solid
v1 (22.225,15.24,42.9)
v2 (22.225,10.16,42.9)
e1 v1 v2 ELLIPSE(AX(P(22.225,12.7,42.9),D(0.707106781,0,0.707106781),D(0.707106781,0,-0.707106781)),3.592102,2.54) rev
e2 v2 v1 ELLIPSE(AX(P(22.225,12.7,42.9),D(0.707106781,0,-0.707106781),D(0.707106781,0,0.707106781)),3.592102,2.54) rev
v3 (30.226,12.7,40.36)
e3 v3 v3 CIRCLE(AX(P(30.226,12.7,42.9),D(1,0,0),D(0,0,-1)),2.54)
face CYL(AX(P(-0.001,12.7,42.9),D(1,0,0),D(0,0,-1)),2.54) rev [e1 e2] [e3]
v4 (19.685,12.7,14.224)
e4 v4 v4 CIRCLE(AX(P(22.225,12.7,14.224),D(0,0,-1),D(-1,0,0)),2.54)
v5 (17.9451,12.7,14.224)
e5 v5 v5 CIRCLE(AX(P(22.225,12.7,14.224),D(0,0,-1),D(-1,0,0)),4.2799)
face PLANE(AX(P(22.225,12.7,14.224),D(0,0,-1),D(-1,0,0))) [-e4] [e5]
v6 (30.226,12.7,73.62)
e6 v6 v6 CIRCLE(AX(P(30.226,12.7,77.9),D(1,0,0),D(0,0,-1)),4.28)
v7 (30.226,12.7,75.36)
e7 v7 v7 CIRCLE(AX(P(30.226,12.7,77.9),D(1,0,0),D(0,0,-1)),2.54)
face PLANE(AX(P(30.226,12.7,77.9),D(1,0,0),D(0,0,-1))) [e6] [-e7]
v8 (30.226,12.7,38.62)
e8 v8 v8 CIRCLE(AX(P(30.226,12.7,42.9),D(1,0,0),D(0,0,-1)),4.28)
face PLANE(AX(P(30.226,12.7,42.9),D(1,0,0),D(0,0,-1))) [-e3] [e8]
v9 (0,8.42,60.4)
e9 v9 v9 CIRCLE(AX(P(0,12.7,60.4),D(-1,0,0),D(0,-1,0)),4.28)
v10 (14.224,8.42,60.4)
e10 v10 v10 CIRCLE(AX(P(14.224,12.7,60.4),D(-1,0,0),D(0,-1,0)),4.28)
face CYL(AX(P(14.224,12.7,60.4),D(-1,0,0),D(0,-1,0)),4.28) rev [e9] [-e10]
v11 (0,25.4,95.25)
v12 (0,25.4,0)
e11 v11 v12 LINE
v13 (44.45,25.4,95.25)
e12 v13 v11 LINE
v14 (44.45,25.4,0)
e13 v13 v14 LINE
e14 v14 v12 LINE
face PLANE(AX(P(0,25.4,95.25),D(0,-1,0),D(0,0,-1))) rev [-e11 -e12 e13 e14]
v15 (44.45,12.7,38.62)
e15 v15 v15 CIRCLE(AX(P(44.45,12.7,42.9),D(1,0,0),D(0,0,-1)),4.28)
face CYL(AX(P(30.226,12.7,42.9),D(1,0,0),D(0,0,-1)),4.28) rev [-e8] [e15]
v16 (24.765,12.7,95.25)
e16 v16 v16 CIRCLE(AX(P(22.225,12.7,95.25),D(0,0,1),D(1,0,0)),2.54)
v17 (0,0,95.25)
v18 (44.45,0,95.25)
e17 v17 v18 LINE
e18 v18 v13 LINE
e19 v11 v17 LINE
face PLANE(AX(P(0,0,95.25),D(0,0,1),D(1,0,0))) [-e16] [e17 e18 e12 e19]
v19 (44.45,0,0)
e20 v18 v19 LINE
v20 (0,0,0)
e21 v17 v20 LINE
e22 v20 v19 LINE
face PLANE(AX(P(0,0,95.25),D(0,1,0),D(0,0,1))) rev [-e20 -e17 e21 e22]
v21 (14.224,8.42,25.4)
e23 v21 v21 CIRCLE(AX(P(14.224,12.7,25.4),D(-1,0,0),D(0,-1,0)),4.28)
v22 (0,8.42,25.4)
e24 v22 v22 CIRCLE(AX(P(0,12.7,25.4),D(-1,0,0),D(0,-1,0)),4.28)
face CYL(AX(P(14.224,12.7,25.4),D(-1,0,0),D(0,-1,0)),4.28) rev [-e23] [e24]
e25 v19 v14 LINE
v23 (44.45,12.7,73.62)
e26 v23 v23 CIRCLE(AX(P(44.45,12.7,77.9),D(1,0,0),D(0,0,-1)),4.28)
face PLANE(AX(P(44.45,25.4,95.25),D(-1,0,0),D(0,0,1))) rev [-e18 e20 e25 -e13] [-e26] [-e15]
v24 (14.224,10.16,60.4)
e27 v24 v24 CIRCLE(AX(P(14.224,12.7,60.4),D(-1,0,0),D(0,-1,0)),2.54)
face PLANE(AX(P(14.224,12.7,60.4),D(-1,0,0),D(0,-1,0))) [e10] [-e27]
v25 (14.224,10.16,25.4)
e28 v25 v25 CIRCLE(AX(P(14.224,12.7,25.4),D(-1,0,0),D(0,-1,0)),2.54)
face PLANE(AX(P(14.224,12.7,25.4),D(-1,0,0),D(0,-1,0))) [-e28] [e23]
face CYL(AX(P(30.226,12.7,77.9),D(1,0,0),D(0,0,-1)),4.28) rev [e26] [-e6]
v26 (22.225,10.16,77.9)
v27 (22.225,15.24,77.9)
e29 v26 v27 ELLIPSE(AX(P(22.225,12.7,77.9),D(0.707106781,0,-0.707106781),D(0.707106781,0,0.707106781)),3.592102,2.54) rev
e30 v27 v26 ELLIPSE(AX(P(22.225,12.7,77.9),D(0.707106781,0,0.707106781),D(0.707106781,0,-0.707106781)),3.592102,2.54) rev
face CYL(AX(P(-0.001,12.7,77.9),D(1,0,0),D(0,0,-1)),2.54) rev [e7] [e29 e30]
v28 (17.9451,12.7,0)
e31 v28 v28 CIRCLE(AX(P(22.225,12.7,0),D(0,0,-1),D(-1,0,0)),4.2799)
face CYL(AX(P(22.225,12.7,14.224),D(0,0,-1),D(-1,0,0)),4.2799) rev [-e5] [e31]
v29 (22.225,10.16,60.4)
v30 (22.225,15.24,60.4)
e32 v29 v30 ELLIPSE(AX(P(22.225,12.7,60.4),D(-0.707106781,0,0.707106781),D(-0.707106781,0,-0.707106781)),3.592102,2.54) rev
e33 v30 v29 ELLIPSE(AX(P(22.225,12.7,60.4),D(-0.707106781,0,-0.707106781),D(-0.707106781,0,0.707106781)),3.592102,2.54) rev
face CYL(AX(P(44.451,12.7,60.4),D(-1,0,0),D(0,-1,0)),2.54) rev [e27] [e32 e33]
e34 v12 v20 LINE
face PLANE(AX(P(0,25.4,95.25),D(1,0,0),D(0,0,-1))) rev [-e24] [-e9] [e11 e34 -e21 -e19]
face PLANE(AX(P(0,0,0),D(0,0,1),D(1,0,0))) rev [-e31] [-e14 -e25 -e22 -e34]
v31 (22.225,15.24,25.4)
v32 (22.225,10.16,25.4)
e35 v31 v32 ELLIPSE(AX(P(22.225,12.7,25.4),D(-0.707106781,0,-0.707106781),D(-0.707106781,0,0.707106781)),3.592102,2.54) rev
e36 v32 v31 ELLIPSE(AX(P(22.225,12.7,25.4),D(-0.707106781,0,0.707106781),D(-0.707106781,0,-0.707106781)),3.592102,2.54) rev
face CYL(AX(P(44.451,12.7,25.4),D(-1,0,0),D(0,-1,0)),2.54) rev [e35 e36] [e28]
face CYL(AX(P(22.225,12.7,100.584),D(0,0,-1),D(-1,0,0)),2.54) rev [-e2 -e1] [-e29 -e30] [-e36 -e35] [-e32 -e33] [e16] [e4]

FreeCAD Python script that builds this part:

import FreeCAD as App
import Part
import Sketcher

V = App.Vector
Q = App.Units.Quantity

doc = App.newDocument("Part")
body = doc.addObject("PartDesign::Body", "Body")

# Sketch on XY plane
sketch1 = body.newObject("Sketcher::SketchObject", "Sketch")
sketch1.AttachmentSupport = (doc.getObject("XY_Plane"), [""])
sketch1.MapMode = "FlatFace"
sketch1.addGeometry(Part.LineSegment(V(0, 25.4, 0), V(0, 0, 0)), False)
sketch1.addGeometry(Part.LineSegment(V(0, 0, 0), V(44.45, 0, 0)), False)
sketch1.addGeometry(Part.LineSegment(V(44.45, 0, 0), V(44.45, 25.4, 0)), False)
sketch1.addGeometry(Part.LineSegment(V(44.45, 25.4, 0), V(0, 25.4, 0)), False)
sketch1.addConstraint(Sketcher.Constraint("Coincident", 0, 2, 1, 1))
sketch1.addConstraint(Sketcher.Constraint("Coincident", 1, 2, 2, 1))
sketch1.addConstraint(Sketcher.Constraint("Coincident", 2, 2, 3, 1))
sketch1.addConstraint(Sketcher.Constraint("Coincident", 3, 2, 0, 1))
sketch1.addConstraint(Sketcher.Constraint("Vertical", 0))
sketch1.addConstraint(Sketcher.Constraint("Horizontal", 1))
sketch1.addConstraint(Sketcher.Constraint("Vertical", 2))
sketch1.addConstraint(Sketcher.Constraint("Horizontal", 3))
sketch1.addConstraint(Sketcher.Constraint("Coincident", 0, 2, -1, 1))
sketch1.addConstraint(Sketcher.Constraint("DistanceY", 0, 2, 0, 1, Q("1 in")))
sketch1.addConstraint(Sketcher.Constraint("DistanceX", 1, 1, 1, 2, Q("1.75 in")))
pad1 = body.newObject("PartDesign::Pad", "Pad")
pad1.Profile = sketch1
pad1.Length = Q("3.75 in")

# Sketch on YZ plane
sketch2 = body.newObject("Sketcher::SketchObject", "Sketch001")
sketch2.AttachmentSupport = (doc.getObject("YZ_Plane"), [""])
sketch2.MapMode = "FlatFace"
sketch2.addGeometry(Part.Circle(V(12.7, 25.4, 0), V(0, 0, 1), 4.28), False)
sketch2.addGeometry(Part.Circle(V(12.7, 60.4, 0), V(0, 0, 1), 4.28), False)
sketch2.addConstraint(Sketcher.Constraint("Equal", 0, 1))
sketch2.addConstraint(Sketcher.Constraint("Vertical", 0, 3, 1, 3))
sketch2.addConstraint(Sketcher.Constraint("DistanceY", -1, 1, 0, 3, Q("1 in")))
sketch2.addConstraint(Sketcher.Constraint("DistanceX", -1, 1, 0, 3, Q("0.5 in")))
sketch2.addConstraint(Sketcher.Constraint("Diameter", 0, 8.56))
sketch2.addConstraint(Sketcher.Constraint("DistanceY", -1, 1, 1, 3, 60.4))
pocket1 = body.newObject("PartDesign::Pocket", "Pocket")
pocket1.Profile = sketch2
pocket1.Length = Q("0.56 in")
pocket1.Reversed = True

# Sketch on YZ plane
sketch3 = body.newObject("Sketcher::SketchObject", "Sketch002")
sketch3.AttachmentSupport = (doc.getObject("YZ_Plane"), [""])
sketch3.MapMode = "FlatFace"
sketch3.AttachmentOffset = App.Placement(V(0, 0, 1.75 * 25.4), App.Rotation())
sketch3.addGeometry(Part.Circle(V(12.7, 77.9, 0), V(0, 0, 1), 4.28), False)
sketch3.addGeometry(Part.Circle(V(12.7, 42.9, 0), V(0, 0, 1), 4.28), False)
sketch3.addConstraint(Sketcher.Constraint("Equal", 0, 1))
sketch3.addConstraint(Sketcher.Constraint("Vertical", 0, 3, 1, 3))
sketch3.addConstraint(Sketcher.Constraint("DistanceX", -1, 1, 0, 3, Q("0.5 in")))
sketch3.addConstraint(Sketcher.Constraint("Diameter", 0, 8.56))
sketch3.addConstraint(Sketcher.Constraint("DistanceY", -1, 1, 0, 3, 77.9))
sketch3.addConstraint(Sketcher.Constraint("DistanceY", -1, 1, 1, 3, 42.9))
pocket2 = body.newObject("PartDesign::Pocket", "Pocket001")
pocket2.Profile = sketch3
pocket2.Length = Q("0.56 in")

# Sketch on XY plane
sketch4 = body.newObject("Sketcher::SketchObject", "Sketch003")
sketch4.AttachmentSupport = (doc.getObject("XY_Plane"), [""])
sketch4.MapMode = "FlatFace"
sketch4.addGeometry(Part.Circle(V(22.225, 12.7, 0), V(0, 0, 1), 4.2799), False)
sketch4.addConstraint(Sketcher.Constraint("Diameter", 0, Q("0.337 in")))
sketch4.addConstraint(Sketcher.Constraint("DistanceY", -1, 1, 0, 3, Q("0.5 in")))
sketch4.addConstraint(Sketcher.Constraint("DistanceX", -1, 1, 0, 3, Q("0.875 in")))
pocket3 = body.newObject("PartDesign::Pocket", "Pocket002")
pocket3.Profile = sketch4
pocket3.Length = Q("0.56 in")
pocket3.Reversed = True

# Sketch on XY plane
sketch5 = body.newObject("Sketcher::SketchObject", "Sketch004")
sketch5.AttachmentSupport = (doc.getObject("XY_Plane"), [""])
sketch5.MapMode = "FlatFace"
sketch5.AttachmentOffset = App.Placement(V(0, 0, 0.56 * 25.4), App.Rotation())
sketch5.addGeometry(Part.Circle(V(22.225, 12.7, 0), V(0, 0, 1), 2.54), False)
sketch5.addConstraint(Sketcher.Constraint("Diameter", 0, Q("0.2 in")))
sketch5.addConstraint(Sketcher.Constraint("DistanceY", -1, 1, 0, 3, Q("0.5 in")))
sketch5.addConstraint(Sketcher.Constraint("DistanceX", -1, 1, 0, 3, Q("0.875 in")))
pocket4 = body.newObject("PartDesign::Pocket", "Pocket003")
pocket4.Profile = sketch5
pocket4.Length = Q("3.4 in")
pocket4.Reversed = True

# Sketch on YZ plane
sketch6 = body.newObject("Sketcher::SketchObject", "Sketch005")
sketch6.AttachmentSupport = (doc.getObject("YZ_Plane"), [""])
sketch6.MapMode = "FlatFace"
sketch6.AttachmentOffset = App.Placement(V(0, 0, 1.19 * 25.4), App.Rotation())
sketch6.addGeometry(Part.Circle(V(12.7, 42.9, 0), V(0, 0, 1), 2.54), False)
sketch6.addConstraint(Sketcher.Constraint("Diameter", 0, Q("0.2 in")))
sketch6.addConstraint(Sketcher.Constraint("DistanceX", -1, 1, 0, 3, Q("0.5 in")))
sketch6.addConstraint(Sketcher.Constraint("DistanceY", -1, 1, 0, 3, 42.9))
pocket5 = body.newObject("PartDesign::Pocket", "Pocket004")
pocket5.Profile = sketch6
pocket5.Length = Q("0.315 in")

# Sketch on YZ plane
sketch7 = body.newObject("Sketcher::SketchObject", "Sketch006")
sketch7.AttachmentSupport = (doc.getObject("YZ_Plane"), [""])
sketch7.MapMode = "FlatFace"
sketch7.AttachmentOffset = App.Placement(V(0, 0, 1.19 * 25.4), App.Rotation())
sketch7.addGeometry(Part.Circle(V(12.7, 77.9, 0), V(0, 0, 1), 2.54), False)
sketch7.addConstraint(Sketcher.Constraint("Diameter", 0, Q("0.2 in")))
sketch7.addConstraint(Sketcher.Constraint("DistanceX", -1, 1, 0, 3, Q("0.5 in")))
sketch7.addConstraint(Sketcher.Constraint("DistanceY", -1, 1, 0, 3, 77.9))
pocket6 = body.newObject("PartDesign::Pocket", "Pocket005")
pocket6.Profile = sketch7
pocket6.Length = Q("0.315 in")

# Sketch on YZ plane
sketch8 = body.newObject("Sketcher::SketchObject", "Sketch007")
sketch8.AttachmentSupport = (doc.getObject("YZ_Plane"), [""])
sketch8.MapMode = "FlatFace"
sketch8.AttachmentOffset = App.Placement(V(0, 0, 0.56 * 25.4), App.Rotation())
sketch8.addGeometry(Part.Circle(V(12.7, 25.4, 0), V(0, 0, 1), 2.54), False)
sketch8.addConstraint(Sketcher.Constraint("Diameter", 0, Q("0.2 in")))
sketch8.addConstraint(Sketcher.Constraint("DistanceY", -1, 1, 0, 3, Q("1 in")))
sketch8.addConstraint(Sketcher.Constraint("DistanceX", -1, 1, 0, 3, Q("0.5 in")))
pocket7 = body.newObject("PartDesign::Pocket", "Pocket006")
pocket7.Profile = sketch8
pocket7.Type = "UpToFirst"
pocket7.Reversed = True

# Sketch on YZ plane
sketch9 = body.newObject("Sketcher::SketchObject", "Sketch008")
sketch9.AttachmentSupport = (doc.getObject("YZ_Plane"), [""])
sketch9.MapMode = "FlatFace"
sketch9.AttachmentOffset = App.Placement(V(0, 0, 0.56 * 25.4), App.Rotation())
sketch9.addGeometry(Part.Circle(V(12.7, 60.4, 0), V(0, 0, 1), 2.54), False)
sketch9.addConstraint(Sketcher.Constraint("Diameter", 0, Q("0.2 in")))
sketch9.addConstraint(Sketcher.Constraint("DistanceX", -1, 1, 0, 3, Q("0.5 in")))
sketch9.addConstraint(Sketcher.Constraint("DistanceY", -1, 1, 0, 3, 60.4))
pocket8 = body.newObject("PartDesign::Pocket", "Pocket007")
pocket8.Profile = sketch9
pocket8.Type = "UpToFirst"
pocket8.Reversed = True

doc.recompute()
